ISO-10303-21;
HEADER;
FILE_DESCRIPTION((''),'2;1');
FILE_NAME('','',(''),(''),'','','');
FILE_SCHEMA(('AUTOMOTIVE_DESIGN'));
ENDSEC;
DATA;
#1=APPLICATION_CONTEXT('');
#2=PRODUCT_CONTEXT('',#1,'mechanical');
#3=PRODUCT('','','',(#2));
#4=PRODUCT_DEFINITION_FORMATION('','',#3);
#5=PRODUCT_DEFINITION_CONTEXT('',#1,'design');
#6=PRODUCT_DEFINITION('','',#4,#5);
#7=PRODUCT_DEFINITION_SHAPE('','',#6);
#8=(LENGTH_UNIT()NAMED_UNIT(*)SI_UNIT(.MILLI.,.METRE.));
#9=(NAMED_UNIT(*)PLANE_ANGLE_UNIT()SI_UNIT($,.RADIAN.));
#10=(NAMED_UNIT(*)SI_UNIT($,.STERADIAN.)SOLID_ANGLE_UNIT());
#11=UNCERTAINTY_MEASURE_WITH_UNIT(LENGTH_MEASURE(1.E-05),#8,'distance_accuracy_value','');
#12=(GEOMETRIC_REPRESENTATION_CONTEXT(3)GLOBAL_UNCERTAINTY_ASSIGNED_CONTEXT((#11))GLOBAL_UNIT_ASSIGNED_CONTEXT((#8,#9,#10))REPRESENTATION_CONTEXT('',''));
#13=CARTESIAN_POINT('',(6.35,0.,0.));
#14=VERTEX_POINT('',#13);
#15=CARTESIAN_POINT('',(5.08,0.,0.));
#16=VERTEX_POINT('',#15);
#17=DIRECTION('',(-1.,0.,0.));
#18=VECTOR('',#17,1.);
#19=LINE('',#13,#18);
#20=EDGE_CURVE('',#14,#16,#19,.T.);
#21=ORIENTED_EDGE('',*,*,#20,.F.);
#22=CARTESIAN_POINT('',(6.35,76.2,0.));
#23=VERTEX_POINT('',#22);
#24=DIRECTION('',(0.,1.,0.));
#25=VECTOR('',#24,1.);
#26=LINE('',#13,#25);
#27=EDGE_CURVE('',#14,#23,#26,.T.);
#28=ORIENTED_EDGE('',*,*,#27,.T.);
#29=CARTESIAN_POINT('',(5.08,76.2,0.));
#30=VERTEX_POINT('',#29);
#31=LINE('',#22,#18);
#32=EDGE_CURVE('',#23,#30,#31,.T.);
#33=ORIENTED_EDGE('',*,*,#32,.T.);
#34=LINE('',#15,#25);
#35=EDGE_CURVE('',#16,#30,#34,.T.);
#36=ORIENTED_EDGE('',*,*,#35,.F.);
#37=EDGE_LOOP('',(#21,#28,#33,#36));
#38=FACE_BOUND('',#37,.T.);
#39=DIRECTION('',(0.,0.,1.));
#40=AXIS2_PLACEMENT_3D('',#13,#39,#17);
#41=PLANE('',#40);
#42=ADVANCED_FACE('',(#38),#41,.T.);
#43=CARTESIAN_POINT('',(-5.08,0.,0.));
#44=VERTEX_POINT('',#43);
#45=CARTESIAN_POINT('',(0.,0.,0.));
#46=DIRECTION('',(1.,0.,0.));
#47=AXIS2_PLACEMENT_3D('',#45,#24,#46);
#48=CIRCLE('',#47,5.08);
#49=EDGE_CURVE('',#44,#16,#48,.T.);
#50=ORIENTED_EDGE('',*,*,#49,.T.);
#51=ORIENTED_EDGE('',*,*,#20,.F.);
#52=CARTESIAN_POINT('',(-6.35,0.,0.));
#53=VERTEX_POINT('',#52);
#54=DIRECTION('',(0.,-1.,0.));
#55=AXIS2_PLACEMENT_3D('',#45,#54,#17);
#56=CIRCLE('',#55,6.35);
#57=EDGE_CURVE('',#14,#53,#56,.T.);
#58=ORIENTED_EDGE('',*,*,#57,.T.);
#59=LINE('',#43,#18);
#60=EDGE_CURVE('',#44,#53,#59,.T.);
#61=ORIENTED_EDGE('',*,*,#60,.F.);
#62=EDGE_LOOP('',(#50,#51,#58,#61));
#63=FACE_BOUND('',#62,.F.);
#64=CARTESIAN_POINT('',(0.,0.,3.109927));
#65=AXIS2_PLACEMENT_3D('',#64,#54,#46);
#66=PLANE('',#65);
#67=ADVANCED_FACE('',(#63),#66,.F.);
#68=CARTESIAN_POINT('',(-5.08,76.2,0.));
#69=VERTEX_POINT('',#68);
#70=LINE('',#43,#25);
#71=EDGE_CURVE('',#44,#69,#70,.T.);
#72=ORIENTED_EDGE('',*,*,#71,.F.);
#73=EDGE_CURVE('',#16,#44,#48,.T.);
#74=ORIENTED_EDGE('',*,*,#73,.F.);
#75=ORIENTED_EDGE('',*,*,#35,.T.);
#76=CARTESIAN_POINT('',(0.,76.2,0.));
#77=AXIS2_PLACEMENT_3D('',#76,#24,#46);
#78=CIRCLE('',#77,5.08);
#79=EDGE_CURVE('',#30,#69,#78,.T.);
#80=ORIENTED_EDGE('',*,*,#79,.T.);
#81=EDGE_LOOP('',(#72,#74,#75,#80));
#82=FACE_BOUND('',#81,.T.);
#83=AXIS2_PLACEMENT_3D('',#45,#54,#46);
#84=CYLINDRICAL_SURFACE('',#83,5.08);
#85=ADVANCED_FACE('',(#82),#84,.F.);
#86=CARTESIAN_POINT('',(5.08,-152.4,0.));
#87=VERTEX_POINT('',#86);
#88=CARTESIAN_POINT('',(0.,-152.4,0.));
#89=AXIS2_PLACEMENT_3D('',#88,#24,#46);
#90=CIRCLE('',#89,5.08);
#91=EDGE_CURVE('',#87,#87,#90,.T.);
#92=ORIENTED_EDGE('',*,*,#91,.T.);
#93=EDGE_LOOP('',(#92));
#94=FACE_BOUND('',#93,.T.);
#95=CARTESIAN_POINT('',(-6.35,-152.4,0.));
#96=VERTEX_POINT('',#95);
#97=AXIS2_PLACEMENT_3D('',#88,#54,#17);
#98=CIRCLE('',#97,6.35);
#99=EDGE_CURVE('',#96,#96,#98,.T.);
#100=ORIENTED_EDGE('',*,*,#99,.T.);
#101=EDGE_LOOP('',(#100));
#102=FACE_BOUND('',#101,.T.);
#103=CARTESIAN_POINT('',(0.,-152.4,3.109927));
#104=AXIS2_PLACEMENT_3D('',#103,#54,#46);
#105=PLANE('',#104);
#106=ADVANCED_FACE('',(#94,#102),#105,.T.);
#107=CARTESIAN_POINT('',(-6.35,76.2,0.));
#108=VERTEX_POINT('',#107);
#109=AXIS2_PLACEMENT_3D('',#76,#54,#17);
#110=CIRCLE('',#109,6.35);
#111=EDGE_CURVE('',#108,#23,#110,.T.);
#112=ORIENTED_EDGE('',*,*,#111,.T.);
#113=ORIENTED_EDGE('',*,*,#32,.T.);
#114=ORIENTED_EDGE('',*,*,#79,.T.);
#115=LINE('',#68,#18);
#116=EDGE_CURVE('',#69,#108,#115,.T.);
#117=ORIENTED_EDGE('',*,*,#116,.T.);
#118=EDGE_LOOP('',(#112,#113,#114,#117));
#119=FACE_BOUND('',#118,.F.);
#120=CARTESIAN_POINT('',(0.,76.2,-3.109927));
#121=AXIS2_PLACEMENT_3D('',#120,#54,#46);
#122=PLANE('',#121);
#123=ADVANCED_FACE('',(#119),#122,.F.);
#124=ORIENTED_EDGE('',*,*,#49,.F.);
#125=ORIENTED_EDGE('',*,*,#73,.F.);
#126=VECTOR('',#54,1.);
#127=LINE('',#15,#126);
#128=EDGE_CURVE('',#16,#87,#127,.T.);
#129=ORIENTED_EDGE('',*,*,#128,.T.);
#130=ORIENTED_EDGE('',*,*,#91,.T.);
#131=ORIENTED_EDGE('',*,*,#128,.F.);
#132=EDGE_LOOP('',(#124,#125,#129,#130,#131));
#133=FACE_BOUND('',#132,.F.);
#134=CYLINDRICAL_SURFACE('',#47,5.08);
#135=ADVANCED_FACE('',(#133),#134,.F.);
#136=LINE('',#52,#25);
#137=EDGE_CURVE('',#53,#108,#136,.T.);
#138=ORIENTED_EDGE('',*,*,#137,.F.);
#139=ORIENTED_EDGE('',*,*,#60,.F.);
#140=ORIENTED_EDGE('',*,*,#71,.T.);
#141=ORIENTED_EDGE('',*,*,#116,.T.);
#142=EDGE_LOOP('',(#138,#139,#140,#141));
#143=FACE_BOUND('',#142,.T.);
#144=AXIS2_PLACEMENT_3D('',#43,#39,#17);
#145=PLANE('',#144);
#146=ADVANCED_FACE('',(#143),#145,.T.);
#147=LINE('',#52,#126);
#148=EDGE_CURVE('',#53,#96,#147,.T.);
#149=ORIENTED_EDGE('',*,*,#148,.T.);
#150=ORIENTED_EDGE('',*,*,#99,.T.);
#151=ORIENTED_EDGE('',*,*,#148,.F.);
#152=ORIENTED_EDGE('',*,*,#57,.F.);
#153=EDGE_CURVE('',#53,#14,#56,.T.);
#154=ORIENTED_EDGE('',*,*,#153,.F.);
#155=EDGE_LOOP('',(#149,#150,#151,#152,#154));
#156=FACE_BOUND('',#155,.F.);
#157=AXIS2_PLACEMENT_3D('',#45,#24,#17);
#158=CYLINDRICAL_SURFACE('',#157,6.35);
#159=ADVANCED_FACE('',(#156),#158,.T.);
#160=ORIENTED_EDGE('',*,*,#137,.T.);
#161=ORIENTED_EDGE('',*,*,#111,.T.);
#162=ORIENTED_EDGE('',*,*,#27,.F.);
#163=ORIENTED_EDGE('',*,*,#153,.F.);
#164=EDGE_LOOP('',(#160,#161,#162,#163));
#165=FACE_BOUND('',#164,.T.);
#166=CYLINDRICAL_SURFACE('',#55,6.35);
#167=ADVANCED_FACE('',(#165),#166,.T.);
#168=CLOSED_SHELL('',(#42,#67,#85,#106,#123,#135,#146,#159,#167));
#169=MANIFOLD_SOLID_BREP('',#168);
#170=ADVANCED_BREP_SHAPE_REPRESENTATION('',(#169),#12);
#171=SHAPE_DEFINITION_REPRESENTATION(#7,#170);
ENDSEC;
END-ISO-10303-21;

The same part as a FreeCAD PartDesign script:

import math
import FreeCAD as App
import Part
import Sketcher
Q = App.Units.Quantity

doc = App.newDocument("Part")
params = doc.addObject("Spreadsheet::Sheet", "Params")
for row, (alias, value) in enumerate([
    ("sketch1_diameter", "0.5 in"),
    ("sketch1_diameter2", "0.4 in"),
    ("pad1_length", "6 in"),
    ("sketch2_radius", "0.2 in"),
    ("sketch2_radius2", "0.25 in"),
    ("pad2_length", "3 in"),
], start=1):
    params.set(f"A{row}", alias)
    params.set(f"B{row}", "=" + value)
    params.setAlias(f"B{row}", alias)

body = doc.addObject("PartDesign::Body", "Body")

# Sketch on XZ plane
sketch1 = doc.addObject("Sketcher::SketchObject", "Sketch")
body.addObject(sketch1)
sketch1.AttachmentSupport = (doc.XZ_Plane, [""])
sketch1.MapMode = "FlatFace"
sketch1.addGeometry([
    Part.Circle(App.Vector(0, 0, 0), App.Vector(0, 0, 1), 6),
    Part.Circle(App.Vector(0, 0, 0), App.Vector(0, 0, 1), 5),
], False)
sketch1.addConstraint([
    Sketcher.Constraint("Coincident", 0, 3, -1, 1),
    Sketcher.Constraint("Coincident", 1, 3, -1, 1),
    Sketcher.Constraint("Diameter", 0, Q("0.5 in")),
    Sketcher.Constraint("Diameter", 1, Q("0.4 in")),
])
sketch1.setExpression("Constraints[2]", "Params.sketch1_diameter")
sketch1.setExpression("Constraints[3]", "Params.sketch1_diameter2")
pad1 = doc.addObject("PartDesign::Pad", "Pad")
body.addObject(pad1)
pad1.Profile = sketch1
pad1.setExpression("Length", "Params.pad1_length")

# Sketch on XZ plane
sketch2 = doc.addObject("Sketcher::SketchObject", "Sketch001")
body.addObject(sketch2)
sketch2.AttachmentSupport = (doc.XZ_Plane, [""])
sketch2.MapMode = "FlatFace"
sketch2.addGeometry([
    Part.ArcOfCircle(Part.Circle(App.Vector(0, 0, 0), App.Vector(0, 0, 1), 6.3), math.radians(180), math.radians(360)),
    Part.LineSegment(App.Vector(6.3, 0, 0), App.Vector(5.1, 0, 0)),
    Part.ArcOfCircle(Part.Circle(App.Vector(0, 0, 0), App.Vector(0, 0, 1), 5.1), math.radians(180), math.radians(360)),
    Part.LineSegment(App.Vector(-5.1, 0, 0), App.Vector(-6.3, 0, 0)),
], False)
sketch2.addConstraint([
    Sketcher.Constraint("Coincident", 0, 2, 1, 1),
    Sketcher.Constraint("Coincident", 1, 2, 2, 2),
    Sketcher.Constraint("Coincident", 2, 1, 3, 1),
    Sketcher.Constraint("Coincident", 3, 2, 0, 1),
    Sketcher.Constraint("Horizontal", 1),
    Sketcher.Constraint("Horizontal", 3),
    Sketcher.Constraint("Coincident", 0, 3, -1, 1),
    Sketcher.Constraint("Coincident", 2, 3, -1, 1),
    Sketcher.Constraint("PointOnObject", 0, 2, -1),
    Sketcher.Constraint("PointOnObject", 2, 1, -1),
    Sketcher.Constraint("Radius", 2, Q("0.2 in")),
    Sketcher.Constraint("Radius", 0, Q("0.25 in")),
])
sketch2.setExpression("Constraints[10]", "Params.sketch2_radius")
sketch2.setExpression("Constraints[11]", "Params.sketch2_radius2")
pad2 = doc.addObject("PartDesign::Pad", "Pad001")
body.addObject(pad2)
pad2.Profile = sketch2
pad2.setExpression("Length", "Params.pad2_length")
pad2.Reversed = True

doc.recompute()
